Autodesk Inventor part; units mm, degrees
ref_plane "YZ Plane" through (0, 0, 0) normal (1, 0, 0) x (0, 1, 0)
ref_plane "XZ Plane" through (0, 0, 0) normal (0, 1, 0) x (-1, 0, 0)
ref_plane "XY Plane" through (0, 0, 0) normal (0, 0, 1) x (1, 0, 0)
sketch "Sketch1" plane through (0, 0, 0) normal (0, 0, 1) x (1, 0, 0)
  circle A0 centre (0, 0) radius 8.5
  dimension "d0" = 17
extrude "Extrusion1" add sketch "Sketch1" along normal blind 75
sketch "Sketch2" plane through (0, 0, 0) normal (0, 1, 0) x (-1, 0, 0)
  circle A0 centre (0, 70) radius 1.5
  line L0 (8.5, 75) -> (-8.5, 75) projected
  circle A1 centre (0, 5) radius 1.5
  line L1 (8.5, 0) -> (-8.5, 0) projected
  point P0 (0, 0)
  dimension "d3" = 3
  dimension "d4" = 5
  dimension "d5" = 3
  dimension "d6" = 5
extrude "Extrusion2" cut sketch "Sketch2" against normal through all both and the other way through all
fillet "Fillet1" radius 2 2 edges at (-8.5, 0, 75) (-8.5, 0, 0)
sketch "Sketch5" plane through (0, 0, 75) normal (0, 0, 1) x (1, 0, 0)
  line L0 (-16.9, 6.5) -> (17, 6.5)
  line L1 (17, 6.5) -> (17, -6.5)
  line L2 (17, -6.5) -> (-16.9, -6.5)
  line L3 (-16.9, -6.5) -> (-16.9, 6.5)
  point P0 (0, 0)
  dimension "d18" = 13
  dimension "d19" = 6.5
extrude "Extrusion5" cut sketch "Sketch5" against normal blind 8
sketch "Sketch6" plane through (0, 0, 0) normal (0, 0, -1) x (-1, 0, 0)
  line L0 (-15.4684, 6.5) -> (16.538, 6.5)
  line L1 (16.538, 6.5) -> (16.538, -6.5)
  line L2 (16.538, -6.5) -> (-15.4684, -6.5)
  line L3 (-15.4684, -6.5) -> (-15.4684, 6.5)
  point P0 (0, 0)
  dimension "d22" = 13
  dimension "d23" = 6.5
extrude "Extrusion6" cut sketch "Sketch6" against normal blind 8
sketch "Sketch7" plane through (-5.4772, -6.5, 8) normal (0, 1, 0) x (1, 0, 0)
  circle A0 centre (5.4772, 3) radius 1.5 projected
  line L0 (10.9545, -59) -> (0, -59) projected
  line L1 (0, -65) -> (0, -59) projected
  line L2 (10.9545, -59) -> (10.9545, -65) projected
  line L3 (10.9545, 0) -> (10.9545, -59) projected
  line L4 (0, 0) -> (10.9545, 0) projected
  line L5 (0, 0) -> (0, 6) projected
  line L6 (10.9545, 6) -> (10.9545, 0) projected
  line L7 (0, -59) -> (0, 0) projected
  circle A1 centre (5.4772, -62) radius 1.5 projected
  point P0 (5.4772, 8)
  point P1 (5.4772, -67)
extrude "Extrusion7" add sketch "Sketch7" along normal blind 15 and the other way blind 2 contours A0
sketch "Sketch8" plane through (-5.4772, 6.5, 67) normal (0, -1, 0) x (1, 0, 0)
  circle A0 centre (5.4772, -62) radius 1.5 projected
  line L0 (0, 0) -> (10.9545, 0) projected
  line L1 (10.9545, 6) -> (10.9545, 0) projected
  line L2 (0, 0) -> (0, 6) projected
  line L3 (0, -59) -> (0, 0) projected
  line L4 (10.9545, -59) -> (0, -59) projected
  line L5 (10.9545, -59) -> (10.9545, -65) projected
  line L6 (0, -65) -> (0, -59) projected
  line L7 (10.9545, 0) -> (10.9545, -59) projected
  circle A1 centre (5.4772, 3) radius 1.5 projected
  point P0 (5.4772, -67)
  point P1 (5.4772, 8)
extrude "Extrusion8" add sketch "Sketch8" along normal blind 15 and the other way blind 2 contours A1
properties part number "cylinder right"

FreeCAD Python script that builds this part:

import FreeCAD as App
import Part
import Sketcher

V = App.Vector


def edges_at(feature, points):
    """Names of the edges that pass closest to the given points."""
    edges = feature.Shape.Edges
    near = lambda p: min(range(len(edges)), key=lambda i: edges[i].distToShape(Part.Vertex(*p))[0])
    return sorted({f"Edge{near(p) + 1}" for p in points})


def add_polygon(sketch, points):
    """Adds a closed chain of lines whose ends are joined by coincident constraints."""
    first, n = sketch.GeometryCount, len(points)
    for a, b in zip(points, points[1:] + points[:1]):
        sketch.addGeometry(Part.LineSegment(App.Vector(*a, 0), App.Vector(*b, 0)), False)
    for i in range(n):
        sketch.addConstraint(Sketcher.Constraint("Coincident", first + i, 2, first + (i + 1) % n, 1))

doc = App.newDocument("Part")
body = doc.addObject("PartDesign::Body", "Body")

sketch1 = body.newObject("Sketcher::SketchObject", "Sketch")
sketch1.AttachmentSupport = (doc.getObject("XY_Plane"), [""])
sketch1.MapMode = "FlatFace"
sketch1.addGeometry(Part.Circle(V(0, 0, 0), V(0, 0, 1), 8), False)
sketch1.addConstraint([
    Sketcher.Constraint("Coincident", 0, 3, -1, 1),
    Sketcher.Constraint("Diameter", 0, 17.0),
])
pad1 = body.newObject("PartDesign::Pad", "Pad")
pad1.Profile = sketch1
pad1.Length = 75

sketch2 = body.newObject("Sketcher::SketchObject", "Sketch001")
sketch2.AttachmentSupport = (doc.getObject("XZ_Plane"), [""])
sketch2.MapMode = "FlatFace"
sketch2.addGeometry([
    Part.Circle(V(0, 70, 0), V(0, 0, 1), 1.5),
    Part.Circle(V(0, 5, 0), V(0, 0, 1), 1.5),
], False)
sketch2.addConstraint([
    Sketcher.Constraint("Equal", 0, 1),
    Sketcher.Constraint("PointOnObject", 0, 3, -2),
    Sketcher.Constraint("PointOnObject", 1, 3, -2),
    Sketcher.Constraint("Diameter", 0, 3.0),
    Sketcher.Constraint("DistanceY", -1, 1, 1, 3, 5.0),
    Sketcher.Constraint("DistanceY", -1, 1, 0, 3, 70.0),
])
pocket1 = body.newObject("PartDesign::Pocket", "Pocket")
pocket1.Profile = sketch2
pocket1.Type = "ThroughAll"
pocket1.Midplane = True
doc.recompute()

fillet = body.newObject("PartDesign::Fillet", "Fillet")
fillet.Base = (pocket1, edges_at(pocket1, [(-8.5, 0, 75), (-8.5, 0, 0)]))
fillet.Radius = 2

sketch3 = body.newObject("Sketcher::SketchObject", "Sketch002")
sketch3.AttachmentSupport = (doc.getObject("XY_Plane"), [""])
sketch3.MapMode = "FlatFace"
sketch3.AttachmentOffset = App.Placement(V(0, 0, 75), App.Rotation())
add_polygon(sketch3, [(17, 6), (-17, 6), (-17, -6), (17, -6)])
sketch3.addConstraint([
    Sketcher.Constraint("Horizontal", 0),
    Sketcher.Constraint("Vertical", 1),
    Sketcher.Constraint("Horizontal", 2),
    Sketcher.Constraint("Vertical", 3),
    Sketcher.Constraint("DistanceY", 1, 2, 1, 1, 13.0),
    Sketcher.Constraint("DistanceY", -1, 1, 0, 2, 6.5),
    Sketcher.Constraint("DistanceX", 0, 2, 0, 1, 33.9),
    Sketcher.Constraint("DistanceX", -1, 1, 2, 2, 17.0),
])
pocket2 = body.newObject("PartDesign::Pocket", "Pocket001")
pocket2.Profile = sketch3
pocket2.Length = 8

sketch4 = body.newObject("Sketcher::SketchObject", "Sketch003")
sketch4.AttachmentSupport = (doc.getObject("XY_Plane"), [""])
sketch4.MapMode = "FlatFace"
add_polygon(sketch4, [(-17, 6), (15, 6), (15, -6), (-17, -6)])
sketch4.addConstraint([
    Sketcher.Constraint("Horizontal", 0),
    Sketcher.Constraint("Vertical", 1),
    Sketcher.Constraint("Horizontal", 2),
    Sketcher.Constraint("Vertical", 3),
    Sketcher.Constraint("DistanceY", 1, 2, 1, 1, 13.0),
    Sketcher.Constraint("DistanceY", -1, 1, 0, 2, 6.5),
    Sketcher.Constraint("DistanceX", 0, 1, 0, 2, 32.0064),
    Sketcher.Constraint("DistanceX", 2, 2, -1, 1, 16.538),
])
pocket3 = body.newObject("PartDesign::Pocket", "Pocket002")
pocket3.Profile = sketch4
pocket3.Length = 8
pocket3.Reversed = True

sketch5 = body.newObject("Sketcher::SketchObject", "Sketch004")
sketch5.AttachmentSupport = (doc.getObject("XZ_Plane"), [""])
sketch5.MapMode = "FlatFace"
sketch5.AttachmentOffset = App.Placement(V(0, 0, 6.5), App.Rotation())
sketch5.addGeometry(Part.Circle(V(0, 5, 0), V(0, 0, 1), 1.5), False)
sketch5.addConstraint([
    Sketcher.Constraint("PointOnObject", 0, 3, -2),
    Sketcher.Constraint("Diameter", 0, 3.0),
    Sketcher.Constraint("DistanceY", -1, 1, 0, 3, 5.0),
])
pad2 = body.newObject("PartDesign::Pad", "Pad001")
pad2.Profile = sketch5
pad2.Type = "TwoLengths"
pad2.Length = 15
pad2.Length2 = 2
pad2.Reversed = True

sketch6 = body.newObject("Sketcher::SketchObject", "Sketch005")
sketch6.AttachmentSupport = (doc.getObject("XZ_Plane"), [""])
sketch6.MapMode = "FlatFace"
sketch6.AttachmentOffset = App.Placement(V(0, 0, -6.5), App.Rotation())
sketch6.addGeometry(Part.Circle(V(0, 70, 0), V(0, 0, 1), 1.5), False)
sketch6.addConstraint([
    Sketcher.Constraint("PointOnObject", 0, 3, -2),
    Sketcher.Constraint("Diameter", 0, 3.0),
    Sketcher.Constraint("DistanceY", -1, 1, 0, 3, 70.0),
])
pad3 = body.newObject("PartDesign::Pad", "Pad002")
pad3.Profile = sketch6
pad3.Type = "TwoLengths"
pad3.Length = 15
pad3.Length2 = 2

doc.recompute()
